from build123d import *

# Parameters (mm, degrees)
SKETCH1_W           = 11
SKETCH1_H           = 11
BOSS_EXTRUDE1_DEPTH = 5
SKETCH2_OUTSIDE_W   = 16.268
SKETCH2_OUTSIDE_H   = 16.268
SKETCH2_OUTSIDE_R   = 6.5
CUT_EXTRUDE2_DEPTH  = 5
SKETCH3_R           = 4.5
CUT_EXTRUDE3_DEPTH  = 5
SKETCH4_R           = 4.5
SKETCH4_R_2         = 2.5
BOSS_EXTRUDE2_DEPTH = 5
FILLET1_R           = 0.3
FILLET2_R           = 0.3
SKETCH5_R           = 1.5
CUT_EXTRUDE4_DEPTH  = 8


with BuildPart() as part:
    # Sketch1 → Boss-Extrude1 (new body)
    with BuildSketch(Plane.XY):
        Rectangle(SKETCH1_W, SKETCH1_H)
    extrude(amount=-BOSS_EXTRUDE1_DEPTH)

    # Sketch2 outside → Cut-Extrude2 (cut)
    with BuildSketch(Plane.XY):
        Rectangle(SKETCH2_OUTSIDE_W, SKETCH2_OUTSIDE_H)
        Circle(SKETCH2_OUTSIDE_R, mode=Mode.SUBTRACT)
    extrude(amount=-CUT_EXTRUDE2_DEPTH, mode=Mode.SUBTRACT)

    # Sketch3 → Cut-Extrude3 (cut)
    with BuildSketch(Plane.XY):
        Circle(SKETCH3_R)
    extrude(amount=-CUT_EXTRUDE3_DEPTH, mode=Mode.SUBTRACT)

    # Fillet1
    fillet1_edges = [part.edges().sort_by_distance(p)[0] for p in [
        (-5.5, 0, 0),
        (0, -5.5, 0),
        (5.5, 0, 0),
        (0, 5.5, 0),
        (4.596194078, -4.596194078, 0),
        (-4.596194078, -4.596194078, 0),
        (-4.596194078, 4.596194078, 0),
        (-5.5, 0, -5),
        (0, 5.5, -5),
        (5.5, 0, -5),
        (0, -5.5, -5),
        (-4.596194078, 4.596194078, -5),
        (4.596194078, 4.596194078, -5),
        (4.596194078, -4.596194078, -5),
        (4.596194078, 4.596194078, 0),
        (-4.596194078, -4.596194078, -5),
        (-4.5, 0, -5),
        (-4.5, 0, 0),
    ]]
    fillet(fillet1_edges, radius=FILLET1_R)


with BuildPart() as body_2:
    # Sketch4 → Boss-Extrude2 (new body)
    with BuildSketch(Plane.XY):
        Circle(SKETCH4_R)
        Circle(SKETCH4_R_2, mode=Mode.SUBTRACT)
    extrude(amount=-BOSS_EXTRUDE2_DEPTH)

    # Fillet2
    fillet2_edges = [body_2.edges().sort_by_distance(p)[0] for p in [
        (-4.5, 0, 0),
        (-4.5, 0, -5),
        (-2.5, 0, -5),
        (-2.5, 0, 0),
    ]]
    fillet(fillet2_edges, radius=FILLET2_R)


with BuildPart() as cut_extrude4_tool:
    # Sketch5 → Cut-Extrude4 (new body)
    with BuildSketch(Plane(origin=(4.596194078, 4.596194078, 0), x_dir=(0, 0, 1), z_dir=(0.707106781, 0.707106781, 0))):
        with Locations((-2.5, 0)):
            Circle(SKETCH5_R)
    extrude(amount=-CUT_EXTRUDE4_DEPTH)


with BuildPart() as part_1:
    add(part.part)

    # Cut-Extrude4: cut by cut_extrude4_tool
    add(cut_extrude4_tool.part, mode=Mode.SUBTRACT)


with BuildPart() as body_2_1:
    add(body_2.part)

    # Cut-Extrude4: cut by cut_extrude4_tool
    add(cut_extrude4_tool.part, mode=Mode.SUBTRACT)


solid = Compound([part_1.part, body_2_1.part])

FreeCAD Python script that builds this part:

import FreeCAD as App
import Part
import Sketcher


def edges_at(feature, points):
    """Names of the edges that pass closest to the given points."""
    edges = feature.Shape.Edges
    near = lambda p: min(range(len(edges)), key=lambda i: edges[i].distToShape(Part.Vertex(*p))[0])
    return sorted({f"Edge{near(p) + 1}" for p in points})

doc = App.newDocument("Part")
body = doc.addObject("PartDesign::Body", "Body")

sketch1 = body.newObject("Sketcher::SketchObject", "Sketch")
sketch1.AttachmentSupport = (doc.getObject("XY_Plane"), [""])
sketch1.MapMode = "FlatFace"
sketch1.addGeometry(Part.LineSegment(App.Vector(-6, 6, 0), App.Vector(-6, -6, 0)), False)
sketch1.addGeometry(Part.LineSegment(App.Vector(-6, -6, 0), App.Vector(6, -6, 0)), False)
sketch1.addGeometry(Part.LineSegment(App.Vector(6, -6, 0), App.Vector(6, 6, 0)), False)
sketch1.addGeometry(Part.LineSegment(App.Vector(6, 6, 0), App.Vector(-6, 6, 0)), False)
sketch1.addConstraint(Sketcher.Constraint("Coincident", 0, 2, 1, 1))
sketch1.addConstraint(Sketcher.Constraint("Coincident", 1, 2, 2, 1))
sketch1.addConstraint(Sketcher.Constraint("Coincident", 2, 2, 3, 1))
sketch1.addConstraint(Sketcher.Constraint("Coincident", 3, 2, 0, 1))
sketch1.addConstraint(Sketcher.Constraint("Vertical", 0))
sketch1.addConstraint(Sketcher.Constraint("Horizontal", 1))
sketch1.addConstraint(Sketcher.Constraint("Vertical", 2))
sketch1.addConstraint(Sketcher.Constraint("Horizontal", 3))
sketch1.addConstraint(Sketcher.Constraint("Symmetric", 0, 2, 2, 2, -1, 1))
sketch1.addConstraint(Sketcher.Constraint("Equal", 3, 0))
sketch1.addConstraint(Sketcher.Constraint("DistanceX", 1, 1, 1, 2, 11.0))
pad1 = body.newObject("PartDesign::Pad", "Pad")
pad1.Profile = sketch1
pad1.Length = 5
pad1.Reversed = True

sketch2 = body.newObject("Sketcher::SketchObject", "Sketch001")
sketch2.AttachmentSupport = (doc.getObject("XY_Plane"), [""])
sketch2.MapMode = "FlatFace"
sketch2.addGeometry(Part.LineSegment(App.Vector(-8, 8, 0), App.Vector(-8, -8, 0)), False)
sketch2.addGeometry(Part.LineSegment(App.Vector(-8, -8, 0), App.Vector(8, -8, 0)), False)
sketch2.addGeometry(Part.LineSegment(App.Vector(8, -8, 0), App.Vector(8, 8, 0)), False)
sketch2.addGeometry(Part.LineSegment(App.Vector(8, 8, 0), App.Vector(-8, 8, 0)), False)
sketch2.addGeometry(Part.Circle(App.Vector(0, 0, 0), App.Vector(0, 0, 1), 6), False)
sketch2.addConstraint(Sketcher.Constraint("Coincident", 0, 2, 1, 1))
sketch2.addConstraint(Sketcher.Constraint("Coincident", 1, 2, 2, 1))
sketch2.addConstraint(Sketcher.Constraint("Coincident", 2, 2, 3, 1))
sketch2.addConstraint(Sketcher.Constraint("Coincident", 3, 2, 0, 1))
sketch2.addConstraint(Sketcher.Constraint("Vertical", 0))
sketch2.addConstraint(Sketcher.Constraint("Horizontal", 1))
sketch2.addConstraint(Sketcher.Constraint("Vertical", 2))
sketch2.addConstraint(Sketcher.Constraint("Horizontal", 3))
sketch2.addConstraint(Sketcher.Constraint("Coincident", 4, 3, -1, 1))
sketch2.addConstraint(Sketcher.Constraint("Symmetric", 0, 2, 2, 2, -1, 1))
sketch2.addConstraint(Sketcher.Constraint("Equal", 3, 0))
sketch2.addConstraint(Sketcher.Constraint("Diameter", 4, 13.0))
sketch2.addConstraint(Sketcher.Constraint("DistanceX", 1, 1, 1, 2, 16.268))
pocket1 = body.newObject("PartDesign::Pocket", "Pocket")
pocket1.Profile = sketch2
pocket1.Length = 5

sketch3 = body.newObject("Sketcher::SketchObject", "Sketch002")
sketch3.AttachmentSupport = (doc.getObject("XY_Plane"), [""])
sketch3.MapMode = "FlatFace"
sketch3.addGeometry(Part.Circle(App.Vector(0, 0, 0), App.Vector(0, 0, 1), 4.5), False)
sketch3.addConstraint(Sketcher.Constraint("Coincident", 0, 3, -1, 1))
sketch3.addConstraint(Sketcher.Constraint("Diameter", 0, 9.0))
pocket2 = body.newObject("PartDesign::Pocket", "Pocket001")
pocket2.Profile = sketch3
pocket2.Length = 5
doc.recompute()

fillet = body.newObject("PartDesign::Fillet", "Fillet")
fillet.Base = (pocket2, edges_at(pocket2, [
    (-5.5, 0, 0),
    (0, -5.5, 0),
    (5.5, 0, 0),
    (0, 5.5, 0),
    (4.596, -4.596, 0),
    (-4.596, -4.596, 0),
    (-4.596, 4.596, 0),
    (-5.5, 0, -5),
    (0, 5.5, -5),
    (5.5, 0, -5),
    (0, -5.5, -5),
    (-4.596, 4.596, -5),
    (4.596, 4.596, -5),
    (4.596, -4.596, -5),
    (4.596, 4.596, 0),
    (-4.596, -4.596, -5),
    (-4.5, 0, -5),
    (-4.5, 0, 0),
]))
fillet.Radius = 0.3
body2 = doc.addObject("PartDesign::Body", "Body001")

sketch4 = body2.newObject("Sketcher::SketchObject", "Sketch003")
sketch4.AttachmentSupport = (doc.getObject("XY_Plane001"), [""])
sketch4.MapMode = "FlatFace"
sketch4.addGeometry(Part.Circle(App.Vector(0, 0, 0), App.Vector(0, 0, 1), 4.5), False)
sketch4.addGeometry(Part.Circle(App.Vector(0, 0, 0), App.Vector(0, 0, 1), 2.5), False)
sketch4.addConstraint(Sketcher.Constraint("Coincident", 0, 3, -1, 1))
sketch4.addConstraint(Sketcher.Constraint("Coincident", 1, 3, -1, 1))
sketch4.addConstraint(Sketcher.Constraint("Diameter", 0, 9.0))
sketch4.addConstraint(Sketcher.Constraint("Diameter", 1, 5.0))
pad2 = body2.newObject("PartDesign::Pad", "Pad001")
pad2.Profile = sketch4
pad2.Length = 5
pad2.Reversed = True
doc.recompute()

fillet2 = body2.newObject("PartDesign::Fillet", "Fillet001")
fillet2.Base = (pad2, edges_at(pad2, [
    (-4.5, 0, 0),
    (-4.5, 0, -5),
    (-2.5, 0, -5),
    (-2.5, 0, 0),
]))
fillet2.Radius = 0.3
body3 = doc.addObject("PartDesign::Body", "Body002")

sketch5 = body3.newObject("Sketcher::SketchObject", "Sketch004")
sketch5.Placement = App.Placement(App.Vector(4.596194, 4.596194, 0), App.Rotation(App.Vector(0, 0, 1), App.Vector(0.707106781, -0.707106781, 0), App.Vector(0.707106781, 0.707106781, 0), "ZXY"))
sketch5.addGeometry(Part.Circle(App.Vector(-2.5, 0, 0), App.Vector(0, 0, 1), 1.5), False)
sketch5.addConstraint(Sketcher.Constraint("PointOnObject", 0, 3, -1))
sketch5.addConstraint(Sketcher.Constraint("Diameter", 0, 3.0))
sketch5.addConstraint(Sketcher.Constraint("DistanceX", 0, 3, -1, 1, 2.5))
pad3 = body3.newObject("PartDesign::Pad", "Pad002")
pad3.Profile = sketch5
pad3.Length = 8
pad3.Reversed = True
doc.recompute()

body4 = doc.addObject("PartDesign::Body", "Body003")
body4.BaseFeature = body3
boolean = body.newObject("PartDesign::Boolean", "Boolean")
boolean.Type = "Cut"
boolean.addObjects([body4])
doc.recompute()

boolean2 = body2.newObject("PartDesign::Boolean", "Boolean001")
boolean2.Type = "Cut"
boolean2.addObjects([body3])

doc.recompute()
